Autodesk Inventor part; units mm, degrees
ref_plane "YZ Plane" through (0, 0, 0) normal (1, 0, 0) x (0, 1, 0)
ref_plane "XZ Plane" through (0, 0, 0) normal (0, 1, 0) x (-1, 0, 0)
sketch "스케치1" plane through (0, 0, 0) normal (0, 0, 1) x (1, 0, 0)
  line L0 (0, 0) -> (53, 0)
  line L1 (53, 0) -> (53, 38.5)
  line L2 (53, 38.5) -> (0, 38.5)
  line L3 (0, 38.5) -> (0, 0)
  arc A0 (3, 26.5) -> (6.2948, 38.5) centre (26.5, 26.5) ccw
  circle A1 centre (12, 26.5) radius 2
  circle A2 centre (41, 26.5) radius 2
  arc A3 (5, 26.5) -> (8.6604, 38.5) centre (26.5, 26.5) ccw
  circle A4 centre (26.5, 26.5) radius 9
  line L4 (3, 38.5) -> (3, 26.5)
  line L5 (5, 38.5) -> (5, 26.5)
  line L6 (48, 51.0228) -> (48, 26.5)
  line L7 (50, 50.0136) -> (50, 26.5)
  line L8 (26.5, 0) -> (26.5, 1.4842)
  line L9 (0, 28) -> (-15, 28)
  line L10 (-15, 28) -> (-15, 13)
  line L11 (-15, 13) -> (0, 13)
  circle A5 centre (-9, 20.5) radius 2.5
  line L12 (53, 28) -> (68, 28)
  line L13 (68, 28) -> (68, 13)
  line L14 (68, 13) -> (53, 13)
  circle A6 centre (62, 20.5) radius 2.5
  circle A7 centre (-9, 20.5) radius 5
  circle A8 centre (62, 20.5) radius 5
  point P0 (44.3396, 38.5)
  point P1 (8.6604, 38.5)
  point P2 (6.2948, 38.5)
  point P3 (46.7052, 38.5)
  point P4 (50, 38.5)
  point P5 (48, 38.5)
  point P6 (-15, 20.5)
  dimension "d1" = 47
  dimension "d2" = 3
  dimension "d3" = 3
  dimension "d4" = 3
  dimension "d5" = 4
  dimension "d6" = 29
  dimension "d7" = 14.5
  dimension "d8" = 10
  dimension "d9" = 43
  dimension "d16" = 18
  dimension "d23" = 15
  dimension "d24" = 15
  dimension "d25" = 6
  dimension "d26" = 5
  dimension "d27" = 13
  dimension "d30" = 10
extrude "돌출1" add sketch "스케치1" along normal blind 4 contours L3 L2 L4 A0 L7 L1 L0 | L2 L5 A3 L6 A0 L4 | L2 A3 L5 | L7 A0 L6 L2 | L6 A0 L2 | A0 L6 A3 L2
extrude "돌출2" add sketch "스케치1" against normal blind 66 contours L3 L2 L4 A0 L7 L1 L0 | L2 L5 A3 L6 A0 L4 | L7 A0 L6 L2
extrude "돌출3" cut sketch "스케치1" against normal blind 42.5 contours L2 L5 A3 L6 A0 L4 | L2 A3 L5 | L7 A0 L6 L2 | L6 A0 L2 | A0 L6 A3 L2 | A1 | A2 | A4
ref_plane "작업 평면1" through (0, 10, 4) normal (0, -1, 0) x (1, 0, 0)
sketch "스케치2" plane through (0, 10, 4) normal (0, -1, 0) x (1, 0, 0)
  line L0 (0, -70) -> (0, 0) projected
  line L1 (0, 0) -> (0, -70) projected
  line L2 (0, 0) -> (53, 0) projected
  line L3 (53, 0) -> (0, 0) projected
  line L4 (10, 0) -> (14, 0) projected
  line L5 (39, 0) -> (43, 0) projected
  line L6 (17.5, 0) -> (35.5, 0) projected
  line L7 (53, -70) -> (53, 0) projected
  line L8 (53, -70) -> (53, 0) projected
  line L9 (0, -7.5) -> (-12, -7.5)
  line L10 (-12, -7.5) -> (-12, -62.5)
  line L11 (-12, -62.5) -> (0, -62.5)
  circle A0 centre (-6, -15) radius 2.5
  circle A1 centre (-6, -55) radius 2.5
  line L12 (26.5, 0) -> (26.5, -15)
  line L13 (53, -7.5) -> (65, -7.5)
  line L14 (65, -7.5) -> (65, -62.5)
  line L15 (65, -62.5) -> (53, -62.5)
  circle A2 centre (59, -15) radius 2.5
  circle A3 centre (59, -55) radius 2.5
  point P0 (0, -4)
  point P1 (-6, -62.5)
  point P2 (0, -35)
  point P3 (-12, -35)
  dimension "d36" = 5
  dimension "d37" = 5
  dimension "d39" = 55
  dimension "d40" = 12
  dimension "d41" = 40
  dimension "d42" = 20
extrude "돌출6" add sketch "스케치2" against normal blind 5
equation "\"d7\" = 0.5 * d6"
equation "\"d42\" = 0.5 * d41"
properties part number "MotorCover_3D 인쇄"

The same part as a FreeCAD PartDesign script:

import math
import FreeCAD as App
import Part
import Sketcher
Q = App.Units.Quantity

doc = App.newDocument("Part")
body = doc.addObject("PartDesign::Body", "Body")

# Sketch on XY plane
sketch1 = body.newObject("Sketcher::SketchObject", "Sketch")
sketch1.AttachmentSupport = (doc.getObject("XY_Plane"), [""])
sketch1.MapMode = "FlatFace"
sketch1.addGeometry(Part.LineSegment(App.Vector(0, 0, 0), App.Vector(53, 0, 0)), False)
sketch1.addGeometry(Part.LineSegment(App.Vector(53, 0, 0), App.Vector(53, 38.5, 0)), False)
sketch1.addGeometry(Part.LineSegment(App.Vector(53, 38.5, 0), App.Vector(0, 38.5, 0)), False)
sketch1.addGeometry(Part.LineSegment(App.Vector(0, 38.5, 0), App.Vector(0, 0, 0)), False)
sketch1.addGeometry(Part.Circle(App.Vector(26.5, 26.5, 0), App.Vector(0, 0, 1), 9), False)
sketch1.addGeometry(Part.Circle(App.Vector(41, 26.5, 0), App.Vector(0, 0, 1), 2), False)
sketch1.addGeometry(Part.Circle(App.Vector(12, 26.5, 0), App.Vector(0, 0, 1), 2), False)
sketch1.addConstraint(Sketcher.Constraint("Coincident", 0, 2, 1, 1))
sketch1.addConstraint(Sketcher.Constraint("Coincident", 1, 2, 2, 1))
sketch1.addConstraint(Sketcher.Constraint("Coincident", 2, 2, 3, 1))
sketch1.addConstraint(Sketcher.Constraint("Coincident", 3, 2, 0, 1))
sketch1.addConstraint(Sketcher.Constraint("Horizontal", 0))
sketch1.addConstraint(Sketcher.Constraint("Vertical", 1))
sketch1.addConstraint(Sketcher.Constraint("Horizontal", 2))
sketch1.addConstraint(Sketcher.Constraint("Vertical", 3))
sketch1.addConstraint(Sketcher.Constraint("Coincident", 3, 2, -1, 1))
sketch1.addConstraint(Sketcher.Constraint("Equal", 5, 6))
sketch1.addConstraint(Sketcher.Constraint("Horizontal", 4, 3, 5, 3))
sketch1.addConstraint(Sketcher.Constraint("Horizontal", 5, 3, 6, 3))
sketch1.addConstraint(Sketcher.Constraint("Diameter", 4, Q("18 mm")))
sketch1.addConstraint(Sketcher.Constraint("Diameter", 5, Q("4 mm")))
sketch1.addConstraint(Sketcher.Constraint("DistanceX", 6, 3, 5, 3, Q("29 mm")))
sketch1.addConstraint(Sketcher.Constraint("DistanceX", 4, 3, 5, 3, Q("14.5 mm")))
sketch1.addConstraint(Sketcher.Constraint("DistanceX", 0, 1, 0, 2, Q("53 mm")))
sketch1.addConstraint(Sketcher.Constraint("DistanceY", 1, 1, 1, 2, Q("38.5 mm")))
sketch1.addConstraint(Sketcher.Constraint("DistanceX", -1, 1, 5, 3, Q("41 mm")))
sketch1.addConstraint(Sketcher.Constraint("DistanceY", 5, 3, 1, 2, Q("12 mm")))
pad1 = body.newObject("PartDesign::Pad", "Pad")
pad1.Profile = sketch1
pad1.Length = 4

# Sketch on XY plane
sketch2 = body.newObject("Sketcher::SketchObject", "Sketch001")
sketch2.AttachmentSupport = (doc.getObject("XY_Plane"), [""])
sketch2.MapMode = "FlatFace"
sketch2.addGeometry(Part.LineSegment(App.Vector(0, 0, 0), App.Vector(53, 0, 0)), False)
sketch2.addGeometry(Part.LineSegment(App.Vector(53, 0, 0), App.Vector(53, 38, 0)), False)
sketch2.addGeometry(Part.LineSegment(App.Vector(53, 38, 0), App.Vector(48, 38, 0)), False)
sketch2.addGeometry(Part.LineSegment(App.Vector(48, 38, 0), App.Vector(48, 26, 0)), False)
sketch2.addGeometry(Part.ArcOfCircle(Part.Circle(App.Vector(26, 26, 0), App.Vector(0, 0, 1), 22), math.radians(180), math.radians(360)), False)
sketch2.addGeometry(Part.LineSegment(App.Vector(5, 26, 0), App.Vector(5, 38, 0)), False)
sketch2.addGeometry(Part.LineSegment(App.Vector(5, 38, 0), App.Vector(0, 38, 0)), False)
sketch2.addGeometry(Part.LineSegment(App.Vector(0, 38, 0), App.Vector(0, 0, 0)), False)
sketch2.addConstraint(Sketcher.Constraint("Coincident", 0, 2, 1, 1))
sketch2.addConstraint(Sketcher.Constraint("Coincident", 1, 2, 2, 1))
sketch2.addConstraint(Sketcher.Constraint("Coincident", 2, 2, 3, 1))
sketch2.addConstraint(Sketcher.Constraint("Tangent", 3, 2, 4, 2))
sketch2.addConstraint(Sketcher.Constraint("Tangent", 4, 1, 5, 1))
sketch2.addConstraint(Sketcher.Constraint("Coincident", 5, 2, 6, 1))
sketch2.addConstraint(Sketcher.Constraint("Coincident", 6, 2, 7, 1))
sketch2.addConstraint(Sketcher.Constraint("Coincident", 7, 2, 0, 1))
sketch2.addConstraint(Sketcher.Constraint("Horizontal", 0))
sketch2.addConstraint(Sketcher.Constraint("Vertical", 1))
sketch2.addConstraint(Sketcher.Constraint("Horizontal", 2))
sketch2.addConstraint(Sketcher.Constraint("Vertical", 3))
sketch2.addConstraint(Sketcher.Constraint("Vertical", 5))
sketch2.addConstraint(Sketcher.Constraint("Horizontal", 6))
sketch2.addConstraint(Sketcher.Constraint("Vertical", 7))
sketch2.addConstraint(Sketcher.Constraint("Coincident", 7, 2, -1, 1))
sketch2.addConstraint(Sketcher.Constraint("Horizontal", 2, 2, 5, 2))
sketch2.addConstraint(Sketcher.Constraint("Equal", 2, 6))
sketch2.addConstraint(Sketcher.Constraint("Radius", 4, Q("21.5 mm")))
sketch2.addConstraint(Sketcher.Constraint("DistanceX", 2, 2, 2, 1, Q("5 mm")))
sketch2.addConstraint(Sketcher.Constraint("DistanceY", 3, 2, 3, 1, Q("12 mm")))
sketch2.addConstraint(Sketcher.Constraint("DistanceY", 1, 1, 1, 2, Q("38.5 mm")))
pad2 = body.newObject("PartDesign::Pad", "Pad001")
pad2.Profile = sketch2
pad2.Length = 66
pad2.Reversed = True

# Sketch on XY plane
sketch3 = body.newObject("Sketcher::SketchObject", "Sketch002")
sketch3.AttachmentSupport = (doc.getObject("XY_Plane"), [""])
sketch3.MapMode = "FlatFace"
sketch3.addGeometry(Part.LineSegment(App.Vector(3, 38, 0), App.Vector(3, 26, 0)), False)
sketch3.addGeometry(Part.ArcOfCircle(Part.Circle(App.Vector(26, 26, 0), App.Vector(0, 0, 1), 24), math.radians(180), math.radians(360)), False)
sketch3.addGeometry(Part.LineSegment(App.Vector(50, 26, 0), App.Vector(50, 38, 0)), False)
sketch3.addGeometry(Part.LineSegment(App.Vector(50, 38, 0), App.Vector(3, 38, 0)), False)
sketch3.addConstraint(Sketcher.Constraint("Tangent", 0, 2, 1, 1))
sketch3.addConstraint(Sketcher.Constraint("Tangent", 1, 2, 2, 1))
sketch3.addConstraint(Sketcher.Constraint("Coincident", 2, 2, 3, 1))
sketch3.addConstraint(Sketcher.Constraint("Coincident", 3, 2, 0, 1))
sketch3.addConstraint(Sketcher.Constraint("Vertical", 0))
sketch3.addConstraint(Sketcher.Constraint("Vertical", 2))
sketch3.addConstraint(Sketcher.Constraint("Horizontal", 3))
sketch3.addConstraint(Sketcher.Constraint("Radius", 1, Q("23.5 mm")))
sketch3.addConstraint(Sketcher.Constraint("DistanceX", -1, 1, 0, 2, Q("3 mm")))
sketch3.addConstraint(Sketcher.Constraint("DistanceY", 0, 2, 0, 1, Q("12 mm")))
sketch3.addConstraint(Sketcher.Constraint("DistanceY", -1, 1, 1, 3, Q("26.5 mm")))
pocket1 = body.newObject("PartDesign::Pocket", "Pocket")
pocket1.Profile = sketch3
pocket1.Length = 42.5

# Sketch on XZ plane
sketch4 = body.newObject("Sketcher::SketchObject", "Sketch003")
sketch4.AttachmentSupport = (doc.getObject("XZ_Plane"), [""])
sketch4.MapMode = "FlatFace"
sketch4.AttachmentOffset = App.Placement(App.Vector(0, 0, -10), App.Rotation())
sketch4.addGeometry(Part.LineSegment(App.Vector(-12, -58.5, 0), App.Vector(0, -58.5, 0)), False)
sketch4.addGeometry(Part.LineSegment(App.Vector(0, -58.5, 0), App.Vector(0, -3.5, 0)), False)
sketch4.addGeometry(Part.LineSegment(App.Vector(0, -3.5, 0), App.Vector(-12, -3.5, 0)), False)
sketch4.addGeometry(Part.LineSegment(App.Vector(-12, -3.5, 0), App.Vector(-12, -58.5, 0)), False)
sketch4.addGeometry(Part.Circle(App.Vector(-6, -51, 0), App.Vector(0, 0, 1), 2.5), False)
sketch4.addGeometry(Part.Circle(App.Vector(-6, -11, 0), App.Vector(0, 0, 1), 2.5), False)
sketch4.addGeometry(Part.LineSegment(App.Vector(65, -3.5, 0), App.Vector(53, -3.5, 0)), False)
sketch4.addGeometry(Part.LineSegment(App.Vector(53, -3.5, 0), App.Vector(53, -58.5, 0)), False)
sketch4.addGeometry(Part.LineSegment(App.Vector(53, -58.5, 0), App.Vector(65, -58.5, 0)), False)
sketch4.addGeometry(Part.LineSegment(App.Vector(65, -58.5, 0), App.Vector(65, -3.5, 0)), False)
sketch4.addGeometry(Part.Circle(App.Vector(59, -51, 0), App.Vector(0, 0, 1), 2.5), False)
sketch4.addGeometry(Part.Circle(App.Vector(59, -11, 0), App.Vector(0, 0, 1), 2.5), False)
sketch4.addConstraint(Sketcher.Constraint("Coincident", 0, 2, 1, 1))
sketch4.addConstraint(Sketcher.Constraint("Coincident", 1, 2, 2, 1))
sketch4.addConstraint(Sketcher.Constraint("Coincident", 2, 2, 3, 1))
sketch4.addConstraint(Sketcher.Constraint("Coincident", 3, 2, 0, 1))
sketch4.addConstraint(Sketcher.Constraint("Coincident", 6, 2, 7, 1))
sketch4.addConstraint(Sketcher.Constraint("Coincident", 7, 2, 8, 1))
sketch4.addConstraint(Sketcher.Constraint("Coincident", 8, 2, 9, 1))
sketch4.addConstraint(Sketcher.Constraint("Coincident", 9, 2, 6, 1))
sketch4.addConstraint(Sketcher.Constraint("Horizontal", 0))
sketch4.addConstraint(Sketcher.Constraint("Vertical", 1))
sketch4.addConstraint(Sketcher.Constraint("Horizontal", 2))
sketch4.addConstraint(Sketcher.Constraint("Vertical", 3))
sketch4.addConstraint(Sketcher.Constraint("Horizontal", 6))
sketch4.addConstraint(Sketcher.Constraint("Vertical", 7))
sketch4.addConstraint(Sketcher.Constraint("Horizontal", 8))
sketch4.addConstraint(Sketcher.Constraint("Vertical", 9))
sketch4.addConstraint(Sketcher.Constraint("Equal", 4, 5))
sketch4.addConstraint(Sketcher.Constraint("Equal", 5, 10))
sketch4.addConstraint(Sketcher.Constraint("Equal", 10, 11))
sketch4.addConstraint(Sketcher.Constraint("PointOnObject", 0, 2, -2))
sketch4.addConstraint(Sketcher.Constraint("Horizontal", 4, 3, 10, 3))
sketch4.addConstraint(Sketcher.Constraint("Horizontal", 5, 3, 11, 3))
sketch4.addConstraint(Sketcher.Constraint("Horizontal", 2, 2, 6, 2))
sketch4.addConstraint(Sketcher.Constraint("Horizontal", 3, 2, 7, 2))
sketch4.addConstraint(Sketcher.Constraint("Vertical", 4, 3, 5, 3))
sketch4.addConstraint(Sketcher.Constraint("Vertical", 10, 3, 11, 3))
sketch4.addConstraint(Sketcher.Constraint("Equal", 2, 6))
sketch4.addConstraint(Sketcher.Constraint("Diameter", 4, Q("5 mm")))
sketch4.addConstraint(Sketcher.Constraint("DistanceX", 0, 1, 0, 2, Q("12 mm")))
sketch4.addConstraint(Sketcher.Constraint("DistanceY", 1, 1, 1, 2, Q("55 mm")))
sketch4.addConstraint(Sketcher.Constraint("DistanceY", 4, 3, 5, 3, Q("40 mm")))
sketch4.addConstraint(Sketcher.Constraint("DistanceX", 4, 3, -1, 1, Q("6 mm")))
sketch4.addConstraint(Sketcher.Constraint("DistanceY", 4, 3, -1, 1, Q("51 mm")))
sketch4.addConstraint(Sketcher.Constraint("DistanceX", -1, 1, 10, 3, Q("59 mm")))
sketch4.addConstraint(Sketcher.Constraint("DistanceX", -1, 1, 6, 2, Q("53 mm")))
sketch4.addConstraint(Sketcher.Constraint("DistanceY", 0, 2, -1, 1, Q("58.5 mm")))
pad3 = body.newObject("PartDesign::Pad", "Pad002")
pad3.Profile = sketch4
pad3.Length = 5
pad3.Reversed = True

doc.recompute()
